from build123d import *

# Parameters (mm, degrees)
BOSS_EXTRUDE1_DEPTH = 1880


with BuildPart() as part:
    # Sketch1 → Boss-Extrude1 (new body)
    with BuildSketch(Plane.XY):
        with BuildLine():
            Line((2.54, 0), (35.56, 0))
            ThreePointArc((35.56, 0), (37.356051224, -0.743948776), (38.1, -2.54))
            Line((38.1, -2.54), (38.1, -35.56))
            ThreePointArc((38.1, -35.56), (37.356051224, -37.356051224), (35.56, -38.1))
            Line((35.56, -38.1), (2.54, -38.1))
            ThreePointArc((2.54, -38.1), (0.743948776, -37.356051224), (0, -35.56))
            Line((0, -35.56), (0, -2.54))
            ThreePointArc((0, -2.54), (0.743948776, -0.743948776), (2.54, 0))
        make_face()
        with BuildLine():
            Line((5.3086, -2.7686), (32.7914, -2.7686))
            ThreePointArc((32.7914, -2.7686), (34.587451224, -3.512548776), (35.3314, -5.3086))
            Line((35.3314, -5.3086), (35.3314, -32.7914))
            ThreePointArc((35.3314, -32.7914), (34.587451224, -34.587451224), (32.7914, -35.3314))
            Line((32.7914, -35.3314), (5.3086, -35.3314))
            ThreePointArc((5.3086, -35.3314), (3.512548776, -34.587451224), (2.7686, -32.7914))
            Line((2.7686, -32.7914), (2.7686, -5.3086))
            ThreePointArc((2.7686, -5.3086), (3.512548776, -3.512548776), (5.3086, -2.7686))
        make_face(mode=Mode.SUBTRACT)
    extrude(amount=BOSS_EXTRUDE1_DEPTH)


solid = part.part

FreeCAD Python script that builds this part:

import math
import FreeCAD as App
import Part
import Sketcher

V = App.Vector
Q = App.Units.Quantity

doc = App.newDocument("Part")
body = doc.addObject("PartDesign::Body", "Body")

sketch1 = body.newObject("Sketcher::SketchObject", "Sketch")
sketch1.AttachmentSupport = (doc.getObject("XY_Plane"), [""])
sketch1.MapMode = "FlatFace"
sketch1.addGeometry([
    Part.LineSegment(V(35.6, 0, 0), V(2.5, 0, 0)),
    Part.ArcOfCircle(Part.Circle(V(2.5, -2.5, 0), V(0, 0, 1), 2.5), math.radians(90), math.radians(180)),
    Part.LineSegment(V(0, -2.5, 0), V(0, -35.6, 0)),
    Part.ArcOfCircle(Part.Circle(V(2.5, -35.6, 0), V(0, 0, 1), 2.5), math.radians(-180), math.radians(-90)),
    Part.LineSegment(V(2.5, -38.1, 0), V(35.6, -38.1, 0)),
    Part.ArcOfCircle(Part.Circle(V(35.6, -35.6, 0), V(0, 0, 1), 2.5), math.radians(-90), math.radians(0)),
    Part.LineSegment(V(38.1, -35.6, 0), V(38.1, -2.5, 0)),
    Part.ArcOfCircle(Part.Circle(V(35.6, -2.5, 0), V(0, 0, 1), 2.5), math.radians(0), math.radians(90)),
    Part.LineSegment(V(5.3, -2.8, 0), V(32.8, -2.8, 0)),
    Part.ArcOfCircle(Part.Circle(V(32.8, -5.3, 0), V(0, 0, 1), 2.5), math.radians(0), math.radians(90)),
    Part.LineSegment(V(35.3, -5.3, 0), V(35.3, -32.8, 0)),
    Part.ArcOfCircle(Part.Circle(V(32.8, -32.8, 0), V(0, 0, 1), 2.5), math.radians(-90), math.radians(0)),
    Part.LineSegment(V(32.8, -35.3, 0), V(5.3, -35.3, 0)),
    Part.ArcOfCircle(Part.Circle(V(5.3, -32.8, 0), V(0, 0, 1), 2.5), math.radians(-180), math.radians(-90)),
    Part.LineSegment(V(2.8, -32.8, 0), V(2.8, -5.3, 0)),
    Part.ArcOfCircle(Part.Circle(V(5.3, -5.3, 0), V(0, 0, 1), 2.5), math.radians(90), math.radians(180)),
], False)
sketch1.addConstraint([
    Sketcher.Constraint("Tangent", 0, 2, 1, 1),
    Sketcher.Constraint("Tangent", 1, 2, 2, 1),
    Sketcher.Constraint("Tangent", 2, 2, 3, 1),
    Sketcher.Constraint("Tangent", 3, 2, 4, 1),
    Sketcher.Constraint("Tangent", 4, 2, 5, 1),
    Sketcher.Constraint("Tangent", 5, 2, 6, 1),
    Sketcher.Constraint("Tangent", 6, 2, 7, 1),
    Sketcher.Constraint("Tangent", 7, 2, 0, 1),
    Sketcher.Constraint("Tangent", 8, 2, 9, 2),
    Sketcher.Constraint("Tangent", 9, 1, 10, 1),
    Sketcher.Constraint("Tangent", 10, 2, 11, 2),
    Sketcher.Constraint("Tangent", 11, 1, 12, 1),
    Sketcher.Constraint("Tangent", 12, 2, 13, 2),
    Sketcher.Constraint("Tangent", 13, 1, 14, 1),
    Sketcher.Constraint("Tangent", 14, 2, 15, 2),
    Sketcher.Constraint("Tangent", 15, 1, 8, 1),
    Sketcher.Constraint("Horizontal", 0),
    Sketcher.Constraint("Vertical", 2),
    Sketcher.Constraint("Horizontal", 4),
    Sketcher.Constraint("Vertical", 6),
    Sketcher.Constraint("Horizontal", 8),
    Sketcher.Constraint("Vertical", 10),
    Sketcher.Constraint("Horizontal", 12),
    Sketcher.Constraint("Vertical", 14),
    Sketcher.Constraint("Equal", 1, 3),
    Sketcher.Constraint("Equal", 3, 5),
    Sketcher.Constraint("Equal", 5, 7),
    Sketcher.Constraint("Equal", 7, 9),
    Sketcher.Constraint("Equal", 9, 11),
    Sketcher.Constraint("Equal", 11, 13),
    Sketcher.Constraint("Equal", 13, 15),
    Sketcher.Constraint("PointOnObject", 0, 2, -1),
    Sketcher.Constraint("PointOnObject", 1, 2, -2),
    Sketcher.Constraint("Equal", 4, 2),
    Sketcher.Constraint("Equal", 12, 10),
    Sketcher.Constraint("Radius", 1, Q("0.1 in")),
    Sketcher.Constraint("DistanceX", 0, 2, 0, 1, Q("1.3 in")),
    Sketcher.Constraint("DistanceX", 8, 1, 8, 2, Q("1.082 in")),
    Sketcher.Constraint("DistanceX", -1, 1, 9, 3, Q("1.291 in")),
    Sketcher.Constraint("DistanceY", 9, 3, -1, 1, Q("0.209 in")),
])
pad1 = body.newObject("PartDesign::Pad", "Pad")
pad1.Profile = sketch1
pad1.Length = 1880

doc.recompute()
